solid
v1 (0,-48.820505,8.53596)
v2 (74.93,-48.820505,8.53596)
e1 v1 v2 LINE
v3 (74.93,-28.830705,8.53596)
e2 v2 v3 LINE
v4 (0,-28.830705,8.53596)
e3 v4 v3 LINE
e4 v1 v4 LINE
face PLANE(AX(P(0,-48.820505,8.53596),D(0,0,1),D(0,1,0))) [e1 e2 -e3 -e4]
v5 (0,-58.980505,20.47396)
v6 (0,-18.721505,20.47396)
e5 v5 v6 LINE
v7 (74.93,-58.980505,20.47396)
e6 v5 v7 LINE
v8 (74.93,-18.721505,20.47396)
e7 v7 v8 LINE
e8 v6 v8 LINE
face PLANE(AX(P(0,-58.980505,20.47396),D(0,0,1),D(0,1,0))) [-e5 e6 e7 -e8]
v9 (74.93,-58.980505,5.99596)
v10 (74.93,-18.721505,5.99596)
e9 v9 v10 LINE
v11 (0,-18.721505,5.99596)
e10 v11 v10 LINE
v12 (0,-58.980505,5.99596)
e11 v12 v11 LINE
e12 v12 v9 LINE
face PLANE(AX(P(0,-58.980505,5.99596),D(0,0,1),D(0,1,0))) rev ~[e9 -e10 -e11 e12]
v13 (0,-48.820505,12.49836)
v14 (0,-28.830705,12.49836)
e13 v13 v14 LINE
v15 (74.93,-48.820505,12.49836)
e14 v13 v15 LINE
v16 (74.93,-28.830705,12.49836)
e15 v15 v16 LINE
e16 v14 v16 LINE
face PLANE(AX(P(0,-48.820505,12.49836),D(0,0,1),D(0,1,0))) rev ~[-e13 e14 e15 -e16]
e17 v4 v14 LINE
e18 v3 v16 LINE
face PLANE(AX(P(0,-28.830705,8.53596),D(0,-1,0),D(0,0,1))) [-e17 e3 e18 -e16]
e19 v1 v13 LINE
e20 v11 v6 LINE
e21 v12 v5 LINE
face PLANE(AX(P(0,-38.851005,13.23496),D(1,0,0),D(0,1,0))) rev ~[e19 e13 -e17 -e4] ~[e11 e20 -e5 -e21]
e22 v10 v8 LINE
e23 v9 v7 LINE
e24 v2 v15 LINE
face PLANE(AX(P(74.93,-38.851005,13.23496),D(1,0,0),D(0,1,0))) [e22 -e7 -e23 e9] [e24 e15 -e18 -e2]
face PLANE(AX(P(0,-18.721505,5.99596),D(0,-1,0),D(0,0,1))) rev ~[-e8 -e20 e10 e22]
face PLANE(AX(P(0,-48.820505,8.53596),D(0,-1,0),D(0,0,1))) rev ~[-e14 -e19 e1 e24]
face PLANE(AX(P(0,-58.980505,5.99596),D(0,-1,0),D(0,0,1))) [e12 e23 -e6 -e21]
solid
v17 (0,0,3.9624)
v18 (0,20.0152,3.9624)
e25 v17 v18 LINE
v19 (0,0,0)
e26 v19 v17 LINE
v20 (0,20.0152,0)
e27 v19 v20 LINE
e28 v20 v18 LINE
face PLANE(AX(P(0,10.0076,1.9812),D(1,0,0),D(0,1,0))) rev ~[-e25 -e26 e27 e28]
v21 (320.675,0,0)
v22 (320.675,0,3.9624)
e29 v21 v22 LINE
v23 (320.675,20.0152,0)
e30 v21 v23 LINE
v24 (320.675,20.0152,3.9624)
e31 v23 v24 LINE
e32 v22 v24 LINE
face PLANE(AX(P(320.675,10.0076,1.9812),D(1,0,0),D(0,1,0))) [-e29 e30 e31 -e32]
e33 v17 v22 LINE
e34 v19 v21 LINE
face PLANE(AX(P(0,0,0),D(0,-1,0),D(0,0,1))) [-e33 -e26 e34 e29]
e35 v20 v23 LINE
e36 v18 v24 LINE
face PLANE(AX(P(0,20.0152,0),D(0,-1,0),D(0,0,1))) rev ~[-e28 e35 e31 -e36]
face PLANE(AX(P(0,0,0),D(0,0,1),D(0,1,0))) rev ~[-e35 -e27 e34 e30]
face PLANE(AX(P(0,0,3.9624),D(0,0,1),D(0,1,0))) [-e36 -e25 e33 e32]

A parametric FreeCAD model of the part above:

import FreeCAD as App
import Part
import Sketcher

V = App.Vector
Q = App.Units.Quantity

doc = App.newDocument("Part")
body = doc.addObject("PartDesign::Body", "Body")

sketch1 = doc.addObject("Sketcher::SketchObject", "Sketch")
body.addObject(sketch1)
sketch1.AttachmentSupport = (doc.YZ_Plane, [""])
sketch1.MapMode = "FlatFace"
sketch1.addGeometry([
    Part.LineSegment(V(0, 3.9624, 0), V(0, 0, 0)),
    Part.LineSegment(V(0, 0, 0), V(20.0152, 0, 0)),
    Part.LineSegment(V(20.0152, 0, 0), V(20.0152, 3.9624, 0)),
    Part.LineSegment(V(20.0152, 3.9624, 0), V(0, 3.9624, 0)),
], False)
sketch1.addConstraint([
    Sketcher.Constraint("Coincident", 0, 2, 1, 1),
    Sketcher.Constraint("Coincident", 1, 2, 2, 1),
    Sketcher.Constraint("Coincident", 2, 2, 3, 1),
    Sketcher.Constraint("Coincident", 3, 2, 0, 1),
    Sketcher.Constraint("Vertical", 0),
    Sketcher.Constraint("Horizontal", 1),
    Sketcher.Constraint("Vertical", 2),
    Sketcher.Constraint("Horizontal", 3),
    Sketcher.Constraint("Coincident", 0, 2, -1, 1),
    Sketcher.Constraint("DistanceX", 1, 1, 1, 2, Q("0.788 in")),
    Sketcher.Constraint("DistanceY", 0, 2, 0, 1, Q("0.156 in")),
])
pad1 = doc.addObject("PartDesign::Pad", "Pad")
body.addObject(pad1)
pad1.Profile = sketch1
pad1.Length = Q("12.625 in")
body2 = doc.addObject("PartDesign::Body", "Body001")

sketch2 = doc.addObject("Sketcher::SketchObject", "Sketch001")
body2.addObject(sketch2)
sketch2.AttachmentSupport = (doc.getObject("YZ_Plane001"), [""])
sketch2.MapMode = "FlatFace"
sketch2.addGeometry([
    Part.LineSegment(V(-58.980505, 20.47396, 0), V(-58.980505, 5.99596, 0)),
    Part.LineSegment(V(-58.980505, 5.99596, 0), V(-18.721505, 5.99596, 0)),
    Part.LineSegment(V(-18.721505, 5.99596, 0), V(-18.721505, 20.47396, 0)),
    Part.LineSegment(V(-18.721505, 20.47396, 0), V(-58.980505, 20.47396, 0)),
    Part.LineSegment(V(-28.830705, 8.53596, 0), V(-48.820505, 8.53596, 0)),
    Part.LineSegment(V(-48.820505, 8.53596, 0), V(-48.820505, 12.49836, 0)),
    Part.LineSegment(V(-48.820505, 12.49836, 0), V(-28.830705, 12.49836, 0)),
    Part.LineSegment(V(-28.830705, 12.49836, 0), V(-28.830705, 8.53596, 0)),
], False)
sketch2.addConstraint([
    Sketcher.Constraint("Coincident", 0, 2, 1, 1),
    Sketcher.Constraint("Coincident", 1, 2, 2, 1),
    Sketcher.Constraint("Coincident", 2, 2, 3, 1),
    Sketcher.Constraint("Coincident", 3, 2, 0, 1),
    Sketcher.Constraint("Coincident", 4, 2, 5, 1),
    Sketcher.Constraint("Coincident", 5, 2, 6, 1),
    Sketcher.Constraint("Coincident", 6, 2, 7, 1),
    Sketcher.Constraint("Coincident", 7, 2, 4, 1),
    Sketcher.Constraint("Vertical", 0),
    Sketcher.Constraint("Horizontal", 1),
    Sketcher.Constraint("Vertical", 2),
    Sketcher.Constraint("Horizontal", 3),
    Sketcher.Constraint("Horizontal", 4),
    Sketcher.Constraint("Vertical", 5),
    Sketcher.Constraint("Horizontal", 6),
    Sketcher.Constraint("Vertical", 7),
    Sketcher.Constraint("DistanceY", 0, 2, 0, 1, Q("0.57 in")),
    Sketcher.Constraint("DistanceX", 0, 2, 4, 2, Q("0.4 in")),
    Sketcher.Constraint("DistanceY", 0, 2, 4, 2, Q("0.1 in")),
    Sketcher.Constraint("DistanceX", 1, 1, 1, 2, Q("1.585 in")),
    Sketcher.Constraint("DistanceX", 4, 2, 4, 1, Q("0.787 in")),
    Sketcher.Constraint("DistanceY", 5, 1, 5, 2, Q("0.156 in")),
    Sketcher.Constraint("DistanceY", -1, 1, 0, 2, 5.99596),
    Sketcher.Constraint("DistanceX", 0, 2, -1, 1, 58.980505),
])
pad2 = doc.addObject("PartDesign::Pad", "Pad001")
body2.addObject(pad2)
pad2.Profile = sketch2
pad2.Length = Q("2.95 in")

doc.recompute()
